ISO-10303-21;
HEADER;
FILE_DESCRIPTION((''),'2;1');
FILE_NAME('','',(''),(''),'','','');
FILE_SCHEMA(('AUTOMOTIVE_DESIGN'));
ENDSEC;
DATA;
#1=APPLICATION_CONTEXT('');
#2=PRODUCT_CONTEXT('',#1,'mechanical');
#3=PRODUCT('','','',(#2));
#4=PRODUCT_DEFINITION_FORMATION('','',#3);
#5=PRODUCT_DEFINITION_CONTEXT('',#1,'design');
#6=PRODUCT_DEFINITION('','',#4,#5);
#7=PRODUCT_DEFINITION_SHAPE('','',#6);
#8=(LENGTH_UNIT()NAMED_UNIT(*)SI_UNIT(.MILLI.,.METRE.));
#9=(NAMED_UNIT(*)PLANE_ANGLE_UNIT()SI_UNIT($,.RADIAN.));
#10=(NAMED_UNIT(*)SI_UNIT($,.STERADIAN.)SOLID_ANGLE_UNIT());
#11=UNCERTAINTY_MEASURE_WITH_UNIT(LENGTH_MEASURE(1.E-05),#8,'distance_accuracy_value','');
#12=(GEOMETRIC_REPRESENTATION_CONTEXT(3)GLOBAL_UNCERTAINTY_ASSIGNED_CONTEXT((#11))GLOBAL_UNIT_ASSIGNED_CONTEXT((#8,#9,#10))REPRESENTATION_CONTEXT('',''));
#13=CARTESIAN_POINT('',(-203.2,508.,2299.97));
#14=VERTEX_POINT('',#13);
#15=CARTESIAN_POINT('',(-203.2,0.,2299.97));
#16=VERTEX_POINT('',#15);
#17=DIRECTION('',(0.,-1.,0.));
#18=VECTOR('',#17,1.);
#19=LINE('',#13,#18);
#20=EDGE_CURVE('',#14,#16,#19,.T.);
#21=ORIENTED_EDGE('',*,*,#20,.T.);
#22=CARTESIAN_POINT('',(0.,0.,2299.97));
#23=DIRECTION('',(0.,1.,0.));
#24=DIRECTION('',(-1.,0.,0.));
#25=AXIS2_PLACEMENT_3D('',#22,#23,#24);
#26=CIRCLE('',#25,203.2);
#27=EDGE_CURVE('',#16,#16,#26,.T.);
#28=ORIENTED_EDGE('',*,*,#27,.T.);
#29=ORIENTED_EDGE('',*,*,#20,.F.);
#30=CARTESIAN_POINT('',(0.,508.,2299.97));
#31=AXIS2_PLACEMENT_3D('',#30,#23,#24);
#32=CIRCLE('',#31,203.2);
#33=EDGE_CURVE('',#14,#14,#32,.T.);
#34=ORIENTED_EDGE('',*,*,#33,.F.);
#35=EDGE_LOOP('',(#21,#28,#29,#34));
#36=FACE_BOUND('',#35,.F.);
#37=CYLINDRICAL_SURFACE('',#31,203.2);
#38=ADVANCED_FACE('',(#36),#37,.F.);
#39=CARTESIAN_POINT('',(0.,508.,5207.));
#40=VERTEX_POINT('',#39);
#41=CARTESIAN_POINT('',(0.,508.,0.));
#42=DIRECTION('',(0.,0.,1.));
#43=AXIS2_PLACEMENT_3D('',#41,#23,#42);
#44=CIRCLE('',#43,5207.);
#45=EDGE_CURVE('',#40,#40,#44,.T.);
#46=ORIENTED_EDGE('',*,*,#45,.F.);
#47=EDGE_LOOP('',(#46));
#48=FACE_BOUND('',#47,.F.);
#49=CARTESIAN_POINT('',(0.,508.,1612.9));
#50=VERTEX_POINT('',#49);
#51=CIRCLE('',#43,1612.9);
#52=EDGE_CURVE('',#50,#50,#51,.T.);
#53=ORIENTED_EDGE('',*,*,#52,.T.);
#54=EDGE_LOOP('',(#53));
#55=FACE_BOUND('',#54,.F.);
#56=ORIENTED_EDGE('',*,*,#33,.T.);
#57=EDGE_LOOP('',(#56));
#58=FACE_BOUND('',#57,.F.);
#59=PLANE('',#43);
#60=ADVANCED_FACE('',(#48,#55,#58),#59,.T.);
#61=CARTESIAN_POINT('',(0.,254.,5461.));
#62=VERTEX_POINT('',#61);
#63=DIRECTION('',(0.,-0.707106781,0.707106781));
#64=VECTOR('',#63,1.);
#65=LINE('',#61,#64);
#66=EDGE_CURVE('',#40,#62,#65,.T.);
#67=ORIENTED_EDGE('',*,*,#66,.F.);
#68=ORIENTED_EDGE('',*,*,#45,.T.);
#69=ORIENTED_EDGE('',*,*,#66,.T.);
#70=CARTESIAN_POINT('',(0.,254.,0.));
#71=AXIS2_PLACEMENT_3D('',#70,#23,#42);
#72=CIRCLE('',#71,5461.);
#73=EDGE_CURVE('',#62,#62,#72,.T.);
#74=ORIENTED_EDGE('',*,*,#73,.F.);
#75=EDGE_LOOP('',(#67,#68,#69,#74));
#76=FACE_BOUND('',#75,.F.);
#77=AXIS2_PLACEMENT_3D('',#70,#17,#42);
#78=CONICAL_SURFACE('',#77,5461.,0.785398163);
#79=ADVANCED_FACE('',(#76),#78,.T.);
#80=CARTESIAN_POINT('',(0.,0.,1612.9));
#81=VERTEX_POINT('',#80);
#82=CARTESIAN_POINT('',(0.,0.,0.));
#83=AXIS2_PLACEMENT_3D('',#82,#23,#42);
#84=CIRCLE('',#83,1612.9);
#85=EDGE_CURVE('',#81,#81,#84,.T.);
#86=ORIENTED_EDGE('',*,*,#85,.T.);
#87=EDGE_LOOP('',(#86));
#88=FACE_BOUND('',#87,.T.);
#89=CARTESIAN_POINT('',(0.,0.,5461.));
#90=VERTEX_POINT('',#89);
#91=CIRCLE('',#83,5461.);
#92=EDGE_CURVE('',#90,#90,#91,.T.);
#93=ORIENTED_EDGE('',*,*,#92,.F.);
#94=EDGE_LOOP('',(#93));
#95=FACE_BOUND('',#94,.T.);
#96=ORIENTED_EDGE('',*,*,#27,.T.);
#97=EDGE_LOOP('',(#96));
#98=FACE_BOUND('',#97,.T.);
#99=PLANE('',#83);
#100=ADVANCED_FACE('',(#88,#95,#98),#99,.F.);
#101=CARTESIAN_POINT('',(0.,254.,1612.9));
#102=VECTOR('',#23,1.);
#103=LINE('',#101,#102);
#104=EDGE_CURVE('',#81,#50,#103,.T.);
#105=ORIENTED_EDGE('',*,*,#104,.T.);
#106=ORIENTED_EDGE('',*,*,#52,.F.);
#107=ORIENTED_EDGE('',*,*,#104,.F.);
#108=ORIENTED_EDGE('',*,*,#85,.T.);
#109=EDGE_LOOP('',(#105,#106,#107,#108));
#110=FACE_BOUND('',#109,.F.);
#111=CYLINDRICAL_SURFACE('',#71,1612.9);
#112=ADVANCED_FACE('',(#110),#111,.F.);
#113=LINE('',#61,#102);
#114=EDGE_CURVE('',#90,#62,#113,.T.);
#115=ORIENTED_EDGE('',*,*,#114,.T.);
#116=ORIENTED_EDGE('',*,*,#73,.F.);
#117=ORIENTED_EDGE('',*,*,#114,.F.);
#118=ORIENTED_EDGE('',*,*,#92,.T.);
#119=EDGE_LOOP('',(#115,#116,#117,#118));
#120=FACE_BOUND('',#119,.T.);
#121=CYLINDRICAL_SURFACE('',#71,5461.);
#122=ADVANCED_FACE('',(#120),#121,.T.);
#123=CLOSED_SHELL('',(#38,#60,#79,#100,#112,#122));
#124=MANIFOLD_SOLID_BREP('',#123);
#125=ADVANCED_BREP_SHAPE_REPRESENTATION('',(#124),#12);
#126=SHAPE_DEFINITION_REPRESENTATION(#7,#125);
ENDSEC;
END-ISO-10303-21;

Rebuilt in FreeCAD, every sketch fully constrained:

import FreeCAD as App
import Part
import Sketcher

V = App.Vector
Q = App.Units.Quantity


def edges_at(feature, points):
    """Names of the edges that pass closest to the given points."""
    edges = feature.Shape.Edges
    near = lambda p: min(range(len(edges)), key=lambda i: edges[i].distToShape(Part.Vertex(*p))[0])
    return sorted({f"Edge{near(p) + 1}" for p in points})


def add_polygon(sketch, points):
    """Adds a closed chain of lines whose ends are joined by coincident constraints."""
    first, n = sketch.GeometryCount, len(points)
    for a, b in zip(points, points[1:] + points[:1]):
        sketch.addGeometry(Part.LineSegment(App.Vector(*a, 0), App.Vector(*b, 0)), False)
    for i in range(n):
        sketch.addConstraint(Sketcher.Constraint("Coincident", first + i, 2, first + (i + 1) % n, 1))

doc = App.newDocument("Part")
body = doc.addObject("PartDesign::Body", "Body")

# Sketch on YZ plane
sketch1 = body.newObject("Sketcher::SketchObject", "Sketch")
sketch1.AttachmentSupport = (doc.getObject("YZ_Plane"), [""])
sketch1.MapMode = "FlatFace"
add_polygon(sketch1, [(0, 5461), (0, 1613), (508, 1613), (508, 5461)])  # lines 0-3
sketch1.addConstraint(Sketcher.Constraint("Vertical", 0))
sketch1.addConstraint(Sketcher.Constraint("Horizontal", 1))
sketch1.addConstraint(Sketcher.Constraint("Vertical", 2))
sketch1.addConstraint(Sketcher.Constraint("Horizontal", 3))
sketch1.addConstraint(Sketcher.Constraint("PointOnObject", 0, 2, -2))
sketch1.addConstraint(Sketcher.Constraint("DistanceX", 1, 1, 1, 2, Q("20 in")))
sketch1.addConstraint(Sketcher.Constraint("DistanceY", 0, 2, 0, 1, Q("151.5 in")))
sketch1.addConstraint(Sketcher.Constraint("DistanceY", -1, 1, 2, 2, Q("215 in")))
revolution = body.newObject("PartDesign::Revolution", "Revolution")
revolution.Profile = sketch1
revolution.ReferenceAxis = (sketch1, ["H_Axis"])
revolution.Angle = 360
doc.recompute()

chamfer = body.newObject("PartDesign::Chamfer", "Chamfer")
chamfer.Base = (revolution, edges_at(revolution, [(0, 508, -5461)]))
chamfer.Size = Q("10 in")

# Sketch on XZ plane
sketch2 = body.newObject("Sketcher::SketchObject", "Sketch001")
sketch2.AttachmentSupport = (doc.getObject("XZ_Plane"), [""])
sketch2.MapMode = "FlatFace"
sketch2.AttachmentOffset = App.Placement(V(0, 0, -20 * 25.4), App.Rotation())
sketch2.addGeometry(Part.Circle(V(0, 2300, 0), V(0, 0, 1), 203), False)
sketch2.addConstraint(Sketcher.Constraint("PointOnObject", 0, 3, -2))
sketch2.addConstraint(Sketcher.Constraint("Diameter", 0, Q("16 in")))
sketch2.addConstraint(Sketcher.Constraint("DistanceY", -1, 1, 0, 3, Q("90.55 in")))
pocket1 = body.newObject("PartDesign::Pocket", "Pocket")
pocket1.Profile = sketch2
pocket1.Type = "ThroughAll"
pocket1.Reversed = True

doc.recompute()
